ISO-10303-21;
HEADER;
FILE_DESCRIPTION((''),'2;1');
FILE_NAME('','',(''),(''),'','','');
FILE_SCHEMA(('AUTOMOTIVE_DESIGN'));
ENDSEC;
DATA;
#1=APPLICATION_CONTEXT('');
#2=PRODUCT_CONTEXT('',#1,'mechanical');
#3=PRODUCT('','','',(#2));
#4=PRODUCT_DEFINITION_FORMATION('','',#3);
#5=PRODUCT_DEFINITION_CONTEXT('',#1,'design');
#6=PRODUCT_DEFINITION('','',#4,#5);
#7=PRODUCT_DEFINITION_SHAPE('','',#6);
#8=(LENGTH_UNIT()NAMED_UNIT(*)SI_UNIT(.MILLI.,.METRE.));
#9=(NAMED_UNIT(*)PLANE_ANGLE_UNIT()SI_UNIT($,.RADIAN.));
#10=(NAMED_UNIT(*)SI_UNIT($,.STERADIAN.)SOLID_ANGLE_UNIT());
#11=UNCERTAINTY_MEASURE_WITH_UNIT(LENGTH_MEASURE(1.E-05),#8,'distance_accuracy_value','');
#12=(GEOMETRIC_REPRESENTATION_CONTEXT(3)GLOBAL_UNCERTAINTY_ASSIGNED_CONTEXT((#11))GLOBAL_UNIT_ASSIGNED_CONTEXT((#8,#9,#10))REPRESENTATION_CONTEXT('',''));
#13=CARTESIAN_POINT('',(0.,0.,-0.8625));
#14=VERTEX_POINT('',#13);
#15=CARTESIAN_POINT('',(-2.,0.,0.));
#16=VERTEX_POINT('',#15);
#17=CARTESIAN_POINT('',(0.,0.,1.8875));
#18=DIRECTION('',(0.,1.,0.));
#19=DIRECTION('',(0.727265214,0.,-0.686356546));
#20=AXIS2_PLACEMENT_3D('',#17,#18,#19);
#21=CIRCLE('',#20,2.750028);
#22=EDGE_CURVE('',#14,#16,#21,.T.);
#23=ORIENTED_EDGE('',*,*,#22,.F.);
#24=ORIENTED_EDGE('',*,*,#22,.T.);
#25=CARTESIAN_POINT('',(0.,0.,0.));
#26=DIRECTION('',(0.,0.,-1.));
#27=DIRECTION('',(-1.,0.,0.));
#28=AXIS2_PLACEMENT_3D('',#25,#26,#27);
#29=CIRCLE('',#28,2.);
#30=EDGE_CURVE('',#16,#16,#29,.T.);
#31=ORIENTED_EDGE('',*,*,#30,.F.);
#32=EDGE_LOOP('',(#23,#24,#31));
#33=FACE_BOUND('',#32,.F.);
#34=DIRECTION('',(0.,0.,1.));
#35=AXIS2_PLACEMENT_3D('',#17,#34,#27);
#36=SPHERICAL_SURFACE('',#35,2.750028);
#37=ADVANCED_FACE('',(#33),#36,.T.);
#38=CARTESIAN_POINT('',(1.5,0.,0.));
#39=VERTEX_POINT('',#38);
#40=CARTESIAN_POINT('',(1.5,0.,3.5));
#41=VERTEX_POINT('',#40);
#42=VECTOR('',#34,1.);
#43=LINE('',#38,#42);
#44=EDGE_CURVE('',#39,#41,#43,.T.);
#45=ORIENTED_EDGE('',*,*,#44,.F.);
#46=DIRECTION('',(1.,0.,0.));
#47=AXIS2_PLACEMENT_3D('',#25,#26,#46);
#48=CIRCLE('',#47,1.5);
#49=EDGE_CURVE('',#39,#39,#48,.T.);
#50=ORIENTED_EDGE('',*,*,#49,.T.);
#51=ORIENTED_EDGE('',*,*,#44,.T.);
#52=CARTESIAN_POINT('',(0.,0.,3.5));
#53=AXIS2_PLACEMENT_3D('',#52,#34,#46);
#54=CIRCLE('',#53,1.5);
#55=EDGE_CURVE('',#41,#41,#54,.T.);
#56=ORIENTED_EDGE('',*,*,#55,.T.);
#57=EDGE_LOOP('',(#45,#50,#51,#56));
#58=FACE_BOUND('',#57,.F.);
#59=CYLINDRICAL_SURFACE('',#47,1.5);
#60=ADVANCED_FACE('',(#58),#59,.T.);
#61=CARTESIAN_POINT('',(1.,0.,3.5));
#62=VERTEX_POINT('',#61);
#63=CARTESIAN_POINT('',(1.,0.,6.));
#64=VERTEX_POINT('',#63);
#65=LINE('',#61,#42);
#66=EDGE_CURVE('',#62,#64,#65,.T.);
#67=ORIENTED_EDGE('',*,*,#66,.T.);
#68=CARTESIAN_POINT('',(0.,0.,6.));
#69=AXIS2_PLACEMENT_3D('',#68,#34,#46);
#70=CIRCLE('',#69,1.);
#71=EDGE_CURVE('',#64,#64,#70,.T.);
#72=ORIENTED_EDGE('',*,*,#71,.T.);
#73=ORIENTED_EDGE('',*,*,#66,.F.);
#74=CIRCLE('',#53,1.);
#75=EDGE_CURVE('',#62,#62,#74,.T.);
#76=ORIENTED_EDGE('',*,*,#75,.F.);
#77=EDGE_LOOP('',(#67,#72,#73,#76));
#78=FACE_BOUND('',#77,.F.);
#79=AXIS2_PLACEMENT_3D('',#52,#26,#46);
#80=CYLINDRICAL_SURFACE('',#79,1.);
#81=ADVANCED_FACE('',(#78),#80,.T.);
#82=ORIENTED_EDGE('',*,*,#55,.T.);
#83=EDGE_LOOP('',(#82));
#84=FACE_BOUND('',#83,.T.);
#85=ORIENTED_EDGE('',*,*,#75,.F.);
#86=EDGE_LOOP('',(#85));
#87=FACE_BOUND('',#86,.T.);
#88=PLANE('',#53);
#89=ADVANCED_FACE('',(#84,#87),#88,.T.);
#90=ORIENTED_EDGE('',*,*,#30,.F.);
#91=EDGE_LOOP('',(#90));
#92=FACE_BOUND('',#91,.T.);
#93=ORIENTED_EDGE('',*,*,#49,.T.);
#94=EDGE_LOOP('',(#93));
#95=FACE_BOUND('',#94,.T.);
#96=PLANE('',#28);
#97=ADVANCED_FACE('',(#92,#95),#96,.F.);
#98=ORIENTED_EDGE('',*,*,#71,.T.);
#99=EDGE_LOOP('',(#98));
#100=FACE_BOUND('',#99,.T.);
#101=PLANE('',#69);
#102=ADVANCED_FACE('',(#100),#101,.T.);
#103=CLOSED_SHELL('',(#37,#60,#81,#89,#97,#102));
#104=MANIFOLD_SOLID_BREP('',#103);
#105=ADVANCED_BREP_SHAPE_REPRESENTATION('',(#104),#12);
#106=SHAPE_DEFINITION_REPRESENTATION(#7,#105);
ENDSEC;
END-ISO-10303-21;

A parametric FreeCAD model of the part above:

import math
import FreeCAD as App
import Part
import Sketcher

V = App.Vector
Q = App.Units.Quantity

doc = App.newDocument("Part")
params = doc.addObject("Spreadsheet::Sheet", "Params")
for row, (alias, value) in enumerate([
    ("sketch1_diameter", "3 mm"),
    ("pad1_length", "3.5 mm"),
    ("sketch2_diameter", "2 mm"),
    ("pad2_length", "2.5 mm"),
    ("sketch3_width", "2 mm"),
    ("sketch3_radius", "2.75 mm"),
    ("revolution_angle", "360 deg"),
], start=1):
    params.set(f"A{row}", alias)
    params.set(f"B{row}", "=" + value)
    params.setAlias(f"B{row}", alias)

body = doc.addObject("PartDesign::Body", "Body")

# Sketch on XY plane
sketch1 = doc.addObject("Sketcher::SketchObject", "Sketch")
body.addObject(sketch1)
sketch1.AttachmentSupport = (doc.XY_Plane, [""])
sketch1.MapMode = "FlatFace"
sketch1.addGeometry(Part.Circle(V(0, 0, 0), V(0, 0, 1), 1.5), False)
sketch1.addConstraint(Sketcher.Constraint("Coincident", 0, 3, -1, 1))
sketch1.addConstraint(Sketcher.Constraint("Diameter", 0, Q("3 mm")))
sketch1.setExpression("Constraints[1]", "Params.sketch1_diameter")
pad1 = doc.addObject("PartDesign::Pad", "Pad")
body.addObject(pad1)
pad1.Profile = sketch1
pad1.setExpression("Length", "Params.pad1_length")

# Sketch on XY plane
sketch2 = doc.addObject("Sketcher::SketchObject", "Sketch001")
body.addObject(sketch2)
sketch2.AttachmentSupport = (doc.XY_Plane, [""])
sketch2.MapMode = "FlatFace"
sketch2.AttachmentOffset = App.Placement(V(0, 0, 3.5), App.Rotation())
sketch2.addGeometry(Part.Circle(V(0, 0, 0), V(0, 0, 1), 1), False)
sketch2.addConstraint(Sketcher.Constraint("Coincident", 0, 3, -1, 1))
sketch2.addConstraint(Sketcher.Constraint("Diameter", 0, Q("2 mm")))
sketch2.setExpression("Constraints[1]", "Params.sketch2_diameter")
pad2 = doc.addObject("PartDesign::Pad", "Pad001")
body.addObject(pad2)
pad2.Profile = sketch2
pad2.setExpression("Length", "Params.pad2_length")

# Sketch on XZ plane
sketch3 = doc.addObject("Sketcher::SketchObject", "Sketch002")
body.addObject(sketch3)
sketch3.AttachmentSupport = (doc.XZ_Plane, [""])
sketch3.MapMode = "FlatFace"
sketch3.addGeometry(Part.LineSegment(V(-2, 0, 0), V(0, 0, 0)), False)
sketch3.addGeometry(Part.LineSegment(V(0, 0, 0), V(0, -0.9, 0)), False)
sketch3.addGeometry(Part.ArcOfCircle(Part.Circle(V(0, 1.9, 0), V(0, 0, 1), 2.8), math.radians(-137), math.radians(-90)), False)
sketch3.addConstraint(Sketcher.Constraint("Coincident", 0, 2, 1, 1))
sketch3.addConstraint(Sketcher.Constraint("Coincident", 1, 2, 2, 2))
sketch3.addConstraint(Sketcher.Constraint("Coincident", 2, 1, 0, 1))
sketch3.addConstraint(Sketcher.Constraint("Horizontal", 0))
sketch3.addConstraint(Sketcher.Constraint("Vertical", 1))
sketch3.addConstraint(Sketcher.Constraint("Coincident", 0, 2, -1, 1))
sketch3.addConstraint(Sketcher.Constraint("PointOnObject", 2, 3, -2))
sketch3.addConstraint(Sketcher.Constraint("DistanceX", 0, 1, 0, 2, Q("2 mm")))
sketch3.addConstraint(Sketcher.Constraint("Radius", 2, Q("2.75 mm")))
sketch3.setExpression("Constraints[7]", "Params.sketch3_width")
sketch3.setExpression("Constraints[8]", "Params.sketch3_radius")
revolution = doc.addObject("PartDesign::Revolution", "Revolution")
body.addObject(revolution)
revolution.Profile = sketch3
revolution.ReferenceAxis = (sketch3, ["V_Axis"])
revolution.setExpression("Angle", "Params.revolution_angle")

doc.recompute()
